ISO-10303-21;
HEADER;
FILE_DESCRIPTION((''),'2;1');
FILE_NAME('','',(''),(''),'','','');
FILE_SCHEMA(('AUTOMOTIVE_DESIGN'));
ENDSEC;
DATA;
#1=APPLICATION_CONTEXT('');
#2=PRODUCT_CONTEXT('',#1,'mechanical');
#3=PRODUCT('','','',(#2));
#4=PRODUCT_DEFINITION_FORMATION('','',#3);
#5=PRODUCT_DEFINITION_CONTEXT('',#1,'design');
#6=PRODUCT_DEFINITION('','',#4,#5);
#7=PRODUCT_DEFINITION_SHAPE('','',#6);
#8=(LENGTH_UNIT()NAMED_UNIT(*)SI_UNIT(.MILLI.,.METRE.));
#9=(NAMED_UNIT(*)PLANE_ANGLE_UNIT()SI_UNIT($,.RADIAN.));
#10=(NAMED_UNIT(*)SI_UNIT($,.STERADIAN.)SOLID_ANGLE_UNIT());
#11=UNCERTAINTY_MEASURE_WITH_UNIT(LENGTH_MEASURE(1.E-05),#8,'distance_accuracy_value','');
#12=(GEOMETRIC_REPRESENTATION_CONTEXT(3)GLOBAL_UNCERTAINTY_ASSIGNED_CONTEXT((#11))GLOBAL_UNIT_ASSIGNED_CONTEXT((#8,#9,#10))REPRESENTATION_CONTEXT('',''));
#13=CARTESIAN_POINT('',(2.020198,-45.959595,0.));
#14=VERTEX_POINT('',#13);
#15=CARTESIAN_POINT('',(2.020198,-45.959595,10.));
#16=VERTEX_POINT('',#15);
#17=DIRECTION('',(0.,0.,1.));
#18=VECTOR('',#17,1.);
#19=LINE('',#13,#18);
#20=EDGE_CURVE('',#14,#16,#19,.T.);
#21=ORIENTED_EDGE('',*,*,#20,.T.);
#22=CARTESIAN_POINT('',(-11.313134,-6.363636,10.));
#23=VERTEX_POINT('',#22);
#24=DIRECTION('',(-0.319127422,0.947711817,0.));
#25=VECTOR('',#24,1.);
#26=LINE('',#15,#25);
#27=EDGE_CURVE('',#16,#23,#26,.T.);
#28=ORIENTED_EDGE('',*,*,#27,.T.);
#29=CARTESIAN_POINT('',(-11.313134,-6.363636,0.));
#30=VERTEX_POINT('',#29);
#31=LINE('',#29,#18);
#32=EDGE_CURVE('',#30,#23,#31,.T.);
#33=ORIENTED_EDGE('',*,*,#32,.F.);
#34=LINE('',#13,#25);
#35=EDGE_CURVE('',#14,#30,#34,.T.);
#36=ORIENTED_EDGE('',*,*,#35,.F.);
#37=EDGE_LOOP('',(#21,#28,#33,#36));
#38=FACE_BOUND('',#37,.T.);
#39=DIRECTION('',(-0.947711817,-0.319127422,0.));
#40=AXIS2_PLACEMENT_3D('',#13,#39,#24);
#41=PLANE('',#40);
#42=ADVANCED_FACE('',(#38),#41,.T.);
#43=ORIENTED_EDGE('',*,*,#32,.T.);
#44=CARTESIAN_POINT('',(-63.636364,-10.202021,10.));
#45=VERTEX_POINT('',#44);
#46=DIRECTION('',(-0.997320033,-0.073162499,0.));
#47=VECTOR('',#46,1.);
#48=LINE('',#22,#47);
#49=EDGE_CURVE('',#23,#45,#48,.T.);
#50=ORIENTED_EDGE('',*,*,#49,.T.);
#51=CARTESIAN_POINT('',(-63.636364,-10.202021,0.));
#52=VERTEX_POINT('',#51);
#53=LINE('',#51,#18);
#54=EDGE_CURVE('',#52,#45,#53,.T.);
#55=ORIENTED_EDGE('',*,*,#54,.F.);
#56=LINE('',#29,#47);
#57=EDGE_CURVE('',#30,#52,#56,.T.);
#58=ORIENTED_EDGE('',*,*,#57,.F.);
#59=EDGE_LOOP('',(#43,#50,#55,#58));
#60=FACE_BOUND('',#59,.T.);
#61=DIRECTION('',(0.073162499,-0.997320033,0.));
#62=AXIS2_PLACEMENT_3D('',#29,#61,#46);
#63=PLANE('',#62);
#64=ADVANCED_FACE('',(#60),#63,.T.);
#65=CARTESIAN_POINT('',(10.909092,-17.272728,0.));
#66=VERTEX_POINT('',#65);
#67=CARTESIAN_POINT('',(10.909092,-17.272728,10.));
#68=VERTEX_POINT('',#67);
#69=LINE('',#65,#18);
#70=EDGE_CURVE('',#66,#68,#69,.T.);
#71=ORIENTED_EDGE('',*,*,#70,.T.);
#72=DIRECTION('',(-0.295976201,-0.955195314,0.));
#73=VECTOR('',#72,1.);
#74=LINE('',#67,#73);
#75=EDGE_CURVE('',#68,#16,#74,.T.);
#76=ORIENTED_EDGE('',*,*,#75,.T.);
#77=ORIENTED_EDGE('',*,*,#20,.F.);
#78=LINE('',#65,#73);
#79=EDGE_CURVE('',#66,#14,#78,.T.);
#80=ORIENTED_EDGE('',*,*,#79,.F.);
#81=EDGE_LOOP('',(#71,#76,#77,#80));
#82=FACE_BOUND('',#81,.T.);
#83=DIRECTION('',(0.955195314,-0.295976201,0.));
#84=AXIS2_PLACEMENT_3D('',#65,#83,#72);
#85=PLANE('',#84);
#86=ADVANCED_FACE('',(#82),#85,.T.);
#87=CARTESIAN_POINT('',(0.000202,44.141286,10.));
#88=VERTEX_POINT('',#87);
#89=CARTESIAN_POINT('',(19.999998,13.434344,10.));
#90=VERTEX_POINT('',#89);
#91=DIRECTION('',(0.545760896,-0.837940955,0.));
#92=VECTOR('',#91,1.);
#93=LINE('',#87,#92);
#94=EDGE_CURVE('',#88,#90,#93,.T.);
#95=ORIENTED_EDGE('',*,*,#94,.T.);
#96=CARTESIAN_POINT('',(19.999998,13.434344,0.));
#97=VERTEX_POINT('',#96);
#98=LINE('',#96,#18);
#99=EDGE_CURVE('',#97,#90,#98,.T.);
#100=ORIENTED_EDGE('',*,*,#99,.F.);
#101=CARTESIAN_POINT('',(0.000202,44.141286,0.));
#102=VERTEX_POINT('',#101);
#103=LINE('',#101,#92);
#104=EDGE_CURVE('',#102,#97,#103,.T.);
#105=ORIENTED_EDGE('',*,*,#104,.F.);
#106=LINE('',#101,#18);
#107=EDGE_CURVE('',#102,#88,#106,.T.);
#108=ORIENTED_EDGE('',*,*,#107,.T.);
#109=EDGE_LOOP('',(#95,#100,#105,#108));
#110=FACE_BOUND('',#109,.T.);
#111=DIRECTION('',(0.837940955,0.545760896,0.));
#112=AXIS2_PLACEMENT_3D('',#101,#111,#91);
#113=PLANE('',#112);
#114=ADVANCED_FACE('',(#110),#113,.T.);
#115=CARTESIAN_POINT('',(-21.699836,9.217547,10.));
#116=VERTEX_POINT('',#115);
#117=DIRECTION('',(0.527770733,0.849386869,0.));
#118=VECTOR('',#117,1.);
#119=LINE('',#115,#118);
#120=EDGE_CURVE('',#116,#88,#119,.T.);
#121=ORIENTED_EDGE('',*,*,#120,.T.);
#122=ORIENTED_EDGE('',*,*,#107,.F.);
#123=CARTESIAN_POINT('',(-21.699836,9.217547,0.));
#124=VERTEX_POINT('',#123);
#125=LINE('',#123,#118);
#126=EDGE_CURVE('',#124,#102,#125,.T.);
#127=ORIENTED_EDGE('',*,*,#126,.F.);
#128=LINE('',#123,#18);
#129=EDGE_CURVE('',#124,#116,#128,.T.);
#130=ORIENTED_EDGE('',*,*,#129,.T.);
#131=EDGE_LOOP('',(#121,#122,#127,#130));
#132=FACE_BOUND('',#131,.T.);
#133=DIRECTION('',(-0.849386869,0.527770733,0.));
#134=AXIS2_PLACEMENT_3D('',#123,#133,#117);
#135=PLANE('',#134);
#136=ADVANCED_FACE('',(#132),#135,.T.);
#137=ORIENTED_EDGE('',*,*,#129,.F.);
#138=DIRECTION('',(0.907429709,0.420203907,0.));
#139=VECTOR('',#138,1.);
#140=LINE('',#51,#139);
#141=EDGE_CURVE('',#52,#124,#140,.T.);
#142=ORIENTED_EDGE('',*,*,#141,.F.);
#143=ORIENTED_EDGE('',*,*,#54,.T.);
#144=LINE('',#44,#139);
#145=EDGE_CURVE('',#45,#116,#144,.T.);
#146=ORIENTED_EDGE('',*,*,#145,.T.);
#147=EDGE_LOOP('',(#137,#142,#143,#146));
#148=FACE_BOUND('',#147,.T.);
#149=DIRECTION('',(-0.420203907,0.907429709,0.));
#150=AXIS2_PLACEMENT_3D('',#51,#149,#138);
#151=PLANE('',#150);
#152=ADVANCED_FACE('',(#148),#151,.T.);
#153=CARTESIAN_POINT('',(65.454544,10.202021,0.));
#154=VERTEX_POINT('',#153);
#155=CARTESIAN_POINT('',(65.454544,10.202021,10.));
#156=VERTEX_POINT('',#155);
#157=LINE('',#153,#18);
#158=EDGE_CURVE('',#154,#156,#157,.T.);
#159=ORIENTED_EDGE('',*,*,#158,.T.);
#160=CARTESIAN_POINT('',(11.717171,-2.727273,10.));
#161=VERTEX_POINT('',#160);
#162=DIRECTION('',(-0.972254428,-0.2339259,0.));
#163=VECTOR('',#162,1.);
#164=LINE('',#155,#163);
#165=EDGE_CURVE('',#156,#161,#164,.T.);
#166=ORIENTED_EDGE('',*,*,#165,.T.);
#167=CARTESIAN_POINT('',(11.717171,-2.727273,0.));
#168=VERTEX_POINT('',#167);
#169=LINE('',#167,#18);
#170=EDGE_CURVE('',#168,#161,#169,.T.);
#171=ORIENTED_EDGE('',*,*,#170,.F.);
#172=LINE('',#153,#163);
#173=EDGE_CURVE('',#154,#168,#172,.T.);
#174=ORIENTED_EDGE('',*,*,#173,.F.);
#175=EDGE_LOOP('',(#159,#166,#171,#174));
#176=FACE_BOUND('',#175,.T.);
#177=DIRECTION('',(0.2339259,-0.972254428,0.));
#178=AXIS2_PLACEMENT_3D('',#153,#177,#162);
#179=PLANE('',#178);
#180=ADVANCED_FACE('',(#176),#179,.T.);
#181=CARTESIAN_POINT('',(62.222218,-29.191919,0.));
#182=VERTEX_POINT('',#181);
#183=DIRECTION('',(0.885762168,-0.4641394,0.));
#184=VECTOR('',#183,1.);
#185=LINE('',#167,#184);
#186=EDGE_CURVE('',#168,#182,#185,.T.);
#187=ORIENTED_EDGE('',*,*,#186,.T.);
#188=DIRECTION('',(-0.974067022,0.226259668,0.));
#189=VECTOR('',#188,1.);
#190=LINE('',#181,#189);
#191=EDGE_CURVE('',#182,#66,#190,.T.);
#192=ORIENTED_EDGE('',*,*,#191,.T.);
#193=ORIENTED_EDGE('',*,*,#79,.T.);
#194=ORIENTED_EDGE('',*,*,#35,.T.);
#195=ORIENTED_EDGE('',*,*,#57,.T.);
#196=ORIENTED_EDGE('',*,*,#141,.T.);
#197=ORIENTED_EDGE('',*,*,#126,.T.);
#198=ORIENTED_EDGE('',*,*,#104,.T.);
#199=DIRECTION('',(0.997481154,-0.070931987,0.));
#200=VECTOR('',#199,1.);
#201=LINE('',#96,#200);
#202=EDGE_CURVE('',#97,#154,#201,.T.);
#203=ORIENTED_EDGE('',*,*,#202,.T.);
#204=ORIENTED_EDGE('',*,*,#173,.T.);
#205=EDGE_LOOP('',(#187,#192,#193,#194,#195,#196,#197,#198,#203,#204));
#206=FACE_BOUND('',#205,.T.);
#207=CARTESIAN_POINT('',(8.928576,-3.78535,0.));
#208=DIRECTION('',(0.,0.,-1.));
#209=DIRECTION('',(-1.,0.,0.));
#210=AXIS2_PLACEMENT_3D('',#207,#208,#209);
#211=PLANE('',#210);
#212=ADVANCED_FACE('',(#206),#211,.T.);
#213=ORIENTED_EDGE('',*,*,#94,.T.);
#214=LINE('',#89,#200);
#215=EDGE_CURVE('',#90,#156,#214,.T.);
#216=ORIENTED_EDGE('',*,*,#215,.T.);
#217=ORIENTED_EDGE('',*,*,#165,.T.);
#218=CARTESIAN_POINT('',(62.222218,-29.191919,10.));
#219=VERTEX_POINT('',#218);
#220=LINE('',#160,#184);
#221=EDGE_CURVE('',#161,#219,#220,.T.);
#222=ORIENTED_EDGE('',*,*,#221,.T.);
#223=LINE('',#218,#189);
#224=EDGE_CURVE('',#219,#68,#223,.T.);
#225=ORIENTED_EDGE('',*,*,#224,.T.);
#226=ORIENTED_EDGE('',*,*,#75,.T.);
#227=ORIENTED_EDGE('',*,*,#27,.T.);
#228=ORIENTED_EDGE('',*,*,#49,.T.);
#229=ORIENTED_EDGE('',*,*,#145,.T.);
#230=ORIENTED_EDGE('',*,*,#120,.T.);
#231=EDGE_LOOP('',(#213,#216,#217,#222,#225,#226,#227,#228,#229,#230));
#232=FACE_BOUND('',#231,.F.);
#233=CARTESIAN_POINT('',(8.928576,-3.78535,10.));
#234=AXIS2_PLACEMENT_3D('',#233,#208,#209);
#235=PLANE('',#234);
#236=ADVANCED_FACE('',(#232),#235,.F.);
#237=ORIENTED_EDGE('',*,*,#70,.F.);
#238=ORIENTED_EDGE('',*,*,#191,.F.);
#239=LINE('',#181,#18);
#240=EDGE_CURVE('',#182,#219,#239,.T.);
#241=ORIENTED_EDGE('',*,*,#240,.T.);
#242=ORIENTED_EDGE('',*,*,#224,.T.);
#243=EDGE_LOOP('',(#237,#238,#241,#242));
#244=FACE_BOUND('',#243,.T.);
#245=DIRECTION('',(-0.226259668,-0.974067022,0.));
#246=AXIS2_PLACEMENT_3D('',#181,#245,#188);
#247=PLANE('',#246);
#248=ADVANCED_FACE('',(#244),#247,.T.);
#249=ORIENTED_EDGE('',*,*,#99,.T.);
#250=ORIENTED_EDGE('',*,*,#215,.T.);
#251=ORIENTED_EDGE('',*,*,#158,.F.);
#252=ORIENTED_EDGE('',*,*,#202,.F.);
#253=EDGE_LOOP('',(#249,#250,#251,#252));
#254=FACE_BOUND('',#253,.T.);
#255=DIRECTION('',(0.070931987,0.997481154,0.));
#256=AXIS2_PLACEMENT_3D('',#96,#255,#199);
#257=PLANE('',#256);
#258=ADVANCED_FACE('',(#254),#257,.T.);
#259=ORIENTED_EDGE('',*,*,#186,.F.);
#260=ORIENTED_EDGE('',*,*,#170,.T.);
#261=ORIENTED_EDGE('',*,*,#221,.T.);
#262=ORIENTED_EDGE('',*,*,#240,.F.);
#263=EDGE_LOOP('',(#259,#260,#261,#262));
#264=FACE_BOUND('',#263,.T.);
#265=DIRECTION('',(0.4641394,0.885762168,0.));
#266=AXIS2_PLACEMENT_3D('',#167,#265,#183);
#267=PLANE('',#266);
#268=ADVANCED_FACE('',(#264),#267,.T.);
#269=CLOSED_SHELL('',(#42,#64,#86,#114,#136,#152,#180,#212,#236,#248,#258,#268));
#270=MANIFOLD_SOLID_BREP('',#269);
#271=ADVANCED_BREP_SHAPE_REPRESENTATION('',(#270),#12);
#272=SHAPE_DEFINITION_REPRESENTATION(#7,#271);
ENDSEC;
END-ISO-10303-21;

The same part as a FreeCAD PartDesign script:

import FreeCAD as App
import Part
import Sketcher
from FreeCAD import Vector


def add_polygon(sketch, points):
    """Adds a closed chain of lines whose ends are joined by coincident constraints."""
    first, n = sketch.GeometryCount, len(points)
    for a, b in zip(points, points[1:] + points[:1]):
        sketch.addGeometry(Part.LineSegment(App.Vector(*a, 0), App.Vector(*b, 0)), False)
    for i in range(n):
        sketch.addConstraint(Sketcher.Constraint("Coincident", first + i, 2, first + (i + 1) % n, 1))

doc = App.newDocument("Part")
body = doc.addObject("PartDesign::Body", "Body")

sketch1 = doc.addObject("Sketcher::SketchObject", "Sketch")
body.addObject(sketch1)
sketch1.AttachmentSupport = (doc.XY_Plane, [""])
sketch1.MapMode = "FlatFace"
add_polygon(sketch1, [(0, 44), (-22, 9), (-64, -10), (-11, -6), (2, -46), (11, -17), (62, -29), (12, -3), (65, 10), (20, 13)])
sketch1.addConstraint([
    Sketcher.Constraint("DistanceX", -1, 1, 8, 2, 19.999998),
    Sketcher.Constraint("DistanceX", -1, 1, 3, 2, 2.020198),
    Sketcher.Constraint("DistanceX", -1, 1, 9, 2, 0.000202),
    Sketcher.Constraint("Distance", 0, 41.11641),
    Sketcher.Constraint("Distance", 1, 46.21463),
    Sketcher.Constraint("Distance", 2, 52.463831),
    Sketcher.Constraint("Distance", 3, 41.78059),
    Sketcher.Constraint("Distance", 8, 45.569328),
    Sketcher.Constraint("Distance", 9, 36.645711),
    Sketcher.Constraint("DistanceY", 1, 2, -1, 1, 10.202021),
    Sketcher.Constraint("DistanceX", -1, 1, 4, 2, 10.909092),
    Sketcher.Constraint("DistanceY", 4, 2, -1, 1, 17.272728),
    Sketcher.Constraint("DistanceY", 5, 2, -1, 1, 29.191919),
    Sketcher.Constraint("DistanceX", -1, 1, 6, 2, 11.717171),
    Sketcher.Constraint("DistanceY", -1, 1, 7, 2, 10.202021),
    Sketcher.Constraint("DistanceX", 1, 2, 2, 2, 52.32323),
    Sketcher.Constraint("DistanceY", 3, 2, 2, 2, 39.595959),
    Sketcher.Constraint("DistanceX", 3, 2, 5, 2, 60.20202),
    Sketcher.Constraint("DistanceY", 6, 2, 0, 2, 11.94482),
    Sketcher.Constraint("DistanceX", 4, 2, 7, 2, 54.545452),
])
pad1 = doc.addObject("PartDesign::Pad", "Pad")
body.addObject(pad1)
pad1.Profile = sketch1
pad1.Length = 10

doc.recompute()
